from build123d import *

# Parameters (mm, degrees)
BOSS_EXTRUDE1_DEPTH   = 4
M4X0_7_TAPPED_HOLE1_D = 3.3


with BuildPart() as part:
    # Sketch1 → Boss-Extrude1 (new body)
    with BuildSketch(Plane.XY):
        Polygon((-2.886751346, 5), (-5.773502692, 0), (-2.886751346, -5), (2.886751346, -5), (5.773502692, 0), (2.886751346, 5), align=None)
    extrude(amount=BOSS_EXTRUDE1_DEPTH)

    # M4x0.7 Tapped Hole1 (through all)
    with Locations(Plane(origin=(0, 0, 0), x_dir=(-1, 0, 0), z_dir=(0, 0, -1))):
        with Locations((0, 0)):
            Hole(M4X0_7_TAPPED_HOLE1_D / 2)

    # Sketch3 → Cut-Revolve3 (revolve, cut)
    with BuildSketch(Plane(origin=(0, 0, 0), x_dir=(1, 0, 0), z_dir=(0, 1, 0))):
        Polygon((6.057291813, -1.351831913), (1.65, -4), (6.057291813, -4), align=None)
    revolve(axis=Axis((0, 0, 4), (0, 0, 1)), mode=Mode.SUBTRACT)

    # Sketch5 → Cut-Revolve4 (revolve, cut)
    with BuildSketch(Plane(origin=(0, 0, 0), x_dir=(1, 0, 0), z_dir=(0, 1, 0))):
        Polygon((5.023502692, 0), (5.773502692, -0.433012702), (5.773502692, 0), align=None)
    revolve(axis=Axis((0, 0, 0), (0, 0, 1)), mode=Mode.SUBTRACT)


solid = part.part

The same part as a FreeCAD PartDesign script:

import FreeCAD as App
import Part
import Sketcher
from FreeCAD import Vector
Q = App.Units.Quantity

doc = App.newDocument("Part")
body = doc.addObject("PartDesign::Body", "Body")

sketch1 = body.newObject("Sketcher::SketchObject", "Sketch")
sketch1.AttachmentSupport = (doc.getObject("XY_Plane"), [""])
sketch1.MapMode = "FlatFace"
sketch1.addGeometry(Part.LineSegment(Vector(-3, 5, 0), Vector(-6, 0, 0)), False)
sketch1.addGeometry(Part.LineSegment(Vector(-6, 0, 0), Vector(-3, -5, 0)), False)
sketch1.addGeometry(Part.LineSegment(Vector(-3, -5, 0), Vector(3, -5, 0)), False)
sketch1.addGeometry(Part.LineSegment(Vector(3, -5, 0), Vector(6, 0, 0)), False)
sketch1.addGeometry(Part.LineSegment(Vector(6, 0, 0), Vector(3, 5, 0)), False)
sketch1.addGeometry(Part.LineSegment(Vector(3, 5, 0), Vector(-3, 5, 0)), False)
sketch1.addConstraint(Sketcher.Constraint("Coincident", 0, 2, 1, 1))
sketch1.addConstraint(Sketcher.Constraint("Coincident", 1, 2, 2, 1))
sketch1.addConstraint(Sketcher.Constraint("Coincident", 2, 2, 3, 1))
sketch1.addConstraint(Sketcher.Constraint("Coincident", 3, 2, 4, 1))
sketch1.addConstraint(Sketcher.Constraint("Coincident", 4, 2, 5, 1))
sketch1.addConstraint(Sketcher.Constraint("Coincident", 5, 2, 0, 1))
sketch1.addConstraint(Sketcher.Constraint("Horizontal", 2))
sketch1.addConstraint(Sketcher.Constraint("Horizontal", 5))
sketch1.addConstraint(Sketcher.Constraint("Symmetric", 0, 2, 3, 2, -1, 1))
sketch1.addConstraint(Sketcher.Constraint("Symmetric", 1, 2, 4, 2, -1, 1))
sketch1.addConstraint(Sketcher.Constraint("PointOnObject", 0, 2, -1))
sketch1.addConstraint(Sketcher.Constraint("Parallel", 0, 3))
sketch1.addConstraint(Sketcher.Constraint("Vertical", 2, 2, 4, 2))
sketch1.addConstraint(Sketcher.Constraint("Angle", 0, Q("-120 deg")))
sketch1.addConstraint(Sketcher.Constraint("DistanceY", 1, 2, -1, 1, 5.0))
sketch1.addConstraint(Sketcher.Constraint("DistanceX", 2, 1, 2, 2, 5.773503))
pad1 = body.newObject("PartDesign::Pad", "Pad")
pad1.Profile = sketch1
pad1.Length = 4

sketch2 = body.newObject("Sketcher::SketchObject", "Sketch001")
sketch2.AttachmentSupport = (doc.getObject("XY_Plane"), [""])
sketch2.MapMode = "FlatFace"
sketch2.addGeometry(Part.Circle(Vector(0, 0, 0), Vector(0, 0, 1), 1.6), False)
sketch2.addConstraint(Sketcher.Constraint("Coincident", 0, 3, -1, 1))
sketch2.addConstraint(Sketcher.Constraint("Diameter", 0, 3.3))
doc.recompute()
hole = body.newObject("PartDesign::Hole", "Hole")
hole.Profile = sketch2
hole.ThreadType = "None"
hole.Diameter = 3.3
hole.DepthType = "ThroughAll"
hole.Reversed = True

sketch3 = body.newObject("Sketcher::SketchObject", "Sketch002")
sketch3.AttachmentSupport = (doc.getObject("XZ_Plane"), [""])
sketch3.MapMode = "FlatFace"
sketch3.addGeometry(Part.LineSegment(Vector(6.1, 1.4, 0), Vector(1.6, 4, 0)), False)
sketch3.addGeometry(Part.LineSegment(Vector(1.6, 4, 0), Vector(6.1, 4, 0)), False)
sketch3.addGeometry(Part.LineSegment(Vector(6.1, 4, 0), Vector(6.1, 1.4, 0)), False)
sketch3.addConstraint(Sketcher.Constraint("Coincident", 0, 2, 1, 1))
sketch3.addConstraint(Sketcher.Constraint("Coincident", 1, 2, 2, 1))
sketch3.addConstraint(Sketcher.Constraint("Coincident", 2, 2, 0, 1))
sketch3.addConstraint(Sketcher.Constraint("Horizontal", 1))
sketch3.addConstraint(Sketcher.Constraint("Vertical", 2))
sketch3.addConstraint(Sketcher.Constraint("Angle", 0, Q("149 deg")))
sketch3.addConstraint(Sketcher.Constraint("DistanceY", -1, 1, 0, 2, 4.0))
sketch3.addConstraint(Sketcher.Constraint("DistanceX", -1, 1, 0, 2, 1.65))
sketch3.addConstraint(Sketcher.Constraint("DistanceX", 1, 1, 1, 2, 4.407292))
groove = body.newObject("PartDesign::Groove", "Groove")
groove.Profile = sketch3
groove.ReferenceAxis = (sketch3, ["V_Axis"])
groove.Angle = 360

sketch4 = body.newObject("Sketcher::SketchObject", "Sketch003")
sketch4.AttachmentSupport = (doc.getObject("XZ_Plane"), [""])
sketch4.MapMode = "FlatFace"
sketch4.addGeometry(Part.LineSegment(Vector(5.02, 0, 0), Vector(5.77, 0.43, 0)), False)
sketch4.addGeometry(Part.LineSegment(Vector(5.77, 0.43, 0), Vector(5.77, 0, 0)), False)
sketch4.addGeometry(Part.LineSegment(Vector(5.77, 0, 0), Vector(5.02, 0, 0)), False)
sketch4.addConstraint(Sketcher.Constraint("Coincident", 0, 2, 1, 1))
sketch4.addConstraint(Sketcher.Constraint("Coincident", 1, 2, 2, 1))
sketch4.addConstraint(Sketcher.Constraint("Coincident", 2, 2, 0, 1))
sketch4.addConstraint(Sketcher.Constraint("Vertical", 1))
sketch4.addConstraint(Sketcher.Constraint("Horizontal", 2))
sketch4.addConstraint(Sketcher.Constraint("PointOnObject", 1, 2, -1))
sketch4.addConstraint(Sketcher.Constraint("Angle", 0, Q("30 deg")))
sketch4.addConstraint(Sketcher.Constraint("DistanceX", 2, 2, 2, 1, 0.75))
sketch4.addConstraint(Sketcher.Constraint("DistanceX", -1, 1, 0, 2, 5.773503))
groove2 = body.newObject("PartDesign::Groove", "Groove001")
groove2.Profile = sketch4
groove2.ReferenceAxis = (sketch4, ["V_Axis"])
groove2.Angle = 360

doc.recompute()
